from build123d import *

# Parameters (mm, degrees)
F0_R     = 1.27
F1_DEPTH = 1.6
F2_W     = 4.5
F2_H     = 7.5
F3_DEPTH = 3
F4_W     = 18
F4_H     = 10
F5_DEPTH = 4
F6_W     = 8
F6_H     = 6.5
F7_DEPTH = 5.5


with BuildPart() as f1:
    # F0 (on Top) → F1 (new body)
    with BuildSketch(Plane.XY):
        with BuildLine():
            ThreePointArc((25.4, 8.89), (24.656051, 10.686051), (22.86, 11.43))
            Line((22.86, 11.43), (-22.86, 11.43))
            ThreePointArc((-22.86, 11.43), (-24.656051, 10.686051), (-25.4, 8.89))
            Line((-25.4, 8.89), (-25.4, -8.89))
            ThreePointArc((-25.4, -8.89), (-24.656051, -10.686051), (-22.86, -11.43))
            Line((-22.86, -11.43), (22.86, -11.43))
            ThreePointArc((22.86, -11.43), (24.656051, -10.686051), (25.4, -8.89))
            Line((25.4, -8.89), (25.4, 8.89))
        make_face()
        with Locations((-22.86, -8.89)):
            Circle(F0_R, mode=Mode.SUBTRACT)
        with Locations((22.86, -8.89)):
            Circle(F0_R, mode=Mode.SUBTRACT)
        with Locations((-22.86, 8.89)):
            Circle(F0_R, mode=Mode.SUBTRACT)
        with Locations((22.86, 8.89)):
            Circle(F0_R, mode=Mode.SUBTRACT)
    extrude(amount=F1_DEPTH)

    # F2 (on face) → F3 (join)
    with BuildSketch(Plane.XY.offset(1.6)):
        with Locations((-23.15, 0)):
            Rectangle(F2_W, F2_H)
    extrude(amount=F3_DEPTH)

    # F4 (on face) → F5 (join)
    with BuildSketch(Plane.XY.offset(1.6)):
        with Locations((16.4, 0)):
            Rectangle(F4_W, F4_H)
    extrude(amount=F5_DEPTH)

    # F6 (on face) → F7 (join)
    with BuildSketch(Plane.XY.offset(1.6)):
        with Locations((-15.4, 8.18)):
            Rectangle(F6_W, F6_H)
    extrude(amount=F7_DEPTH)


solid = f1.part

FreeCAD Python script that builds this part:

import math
import FreeCAD as App
import Part
import Sketcher

doc = App.newDocument("Part")
params = doc.addObject("Spreadsheet::Sheet", "Params")
for row, (alias, value) in enumerate([
    ("sketch1_diameter", "2.54 mm"),
    ("sketch1_radius", "2.540001 mm"),
    ("sketch1_width", "45.72 mm"),
    ("sketch1_height", "17.78 mm"),
    ("pad1_length", "1.6 mm"),
    ("sketch2_width", "4.5 mm"),
    ("sketch2_height", "7.5 mm"),
    ("pad2_length", "3 mm"),
    ("sketch3_width", "18 mm"),
    ("sketch3_height", "10 mm"),
    ("pad3_length", "4 mm"),
    ("sketch4_width", "8 mm"),
    ("sketch4_height", "6.5 mm"),
    ("pad4_length", "5.5 mm"),
], start=1):
    params.set(f"A{row}", alias)
    params.set(f"B{row}", "=" + value)
    params.setAlias(f"B{row}", alias)

body = doc.addObject("PartDesign::Body", "Body")

sketch1 = body.newObject("Sketcher::SketchObject", "Sketch")
sketch1.AttachmentSupport = (doc.getObject("XY_Plane"), [""])
sketch1.MapMode = "FlatFace"
sketch1.addGeometry(Part.ArcOfCircle(Part.Circle(App.Vector(22.859999, 8.889999, 0), App.Vector(0, 0, 1), 2.540001), math.radians(0.000017), math.radians(89.999983)), False)
sketch1.addGeometry(Part.LineSegment(App.Vector(22.86, 11.43, 0), App.Vector(-22.86, 11.43, 0)), False)
sketch1.addGeometry(Part.ArcOfCircle(Part.Circle(App.Vector(-22.859999, 8.889999, 0), App.Vector(0, 0, 1), 2.540001), math.radians(90.000017), math.radians(179.999983)), False)
sketch1.addGeometry(Part.LineSegment(App.Vector(-25.4, 8.89, 0), App.Vector(-25.4, -8.89, 0)), False)
sketch1.addGeometry(Part.ArcOfCircle(Part.Circle(App.Vector(-22.859999, -8.889999, 0), App.Vector(0, 0, 1), 2.540001), math.radians(-179.999983), math.radians(-90.000017)), False)
sketch1.addGeometry(Part.LineSegment(App.Vector(-22.86, -11.43, 0), App.Vector(22.86, -11.43, 0)), False)
sketch1.addGeometry(Part.ArcOfCircle(Part.Circle(App.Vector(22.859999, -8.889999, 0), App.Vector(0, 0, 1), 2.540001), math.radians(-89.999983), math.radians(-0.000017)), False)
sketch1.addGeometry(Part.LineSegment(App.Vector(25.4, -8.89, 0), App.Vector(25.4, 8.89, 0)), False)
sketch1.addGeometry(Part.Circle(App.Vector(-22.86, -8.89, 0), App.Vector(0, 0, 1), 1.27), False)
sketch1.addGeometry(Part.Circle(App.Vector(22.86, -8.89, 0), App.Vector(0, 0, 1), 1.27), False)
sketch1.addGeometry(Part.Circle(App.Vector(-22.86, 8.89, 0), App.Vector(0, 0, 1), 1.27), False)
sketch1.addGeometry(Part.Circle(App.Vector(22.86, 8.89, 0), App.Vector(0, 0, 1), 1.27), False)
sketch1.addConstraint(Sketcher.Constraint("Tangent", 0, 2, 1, 1))
sketch1.addConstraint(Sketcher.Constraint("Tangent", 1, 2, 2, 1))
sketch1.addConstraint(Sketcher.Constraint("Tangent", 2, 2, 3, 1))
sketch1.addConstraint(Sketcher.Constraint("Tangent", 3, 2, 4, 1))
sketch1.addConstraint(Sketcher.Constraint("Tangent", 4, 2, 5, 1))
sketch1.addConstraint(Sketcher.Constraint("Tangent", 5, 2, 6, 1))
sketch1.addConstraint(Sketcher.Constraint("Tangent", 6, 2, 7, 1))
sketch1.addConstraint(Sketcher.Constraint("Tangent", 7, 2, 0, 1))
sketch1.addConstraint(Sketcher.Constraint("Horizontal", 1))
sketch1.addConstraint(Sketcher.Constraint("Vertical", 3))
sketch1.addConstraint(Sketcher.Constraint("Horizontal", 5))
sketch1.addConstraint(Sketcher.Constraint("Vertical", 7))
sketch1.addConstraint(Sketcher.Constraint("Coincident", 8, 3, 4, 3))
sketch1.addConstraint(Sketcher.Constraint("Coincident", 9, 3, 6, 3))
sketch1.addConstraint(Sketcher.Constraint("Coincident", 10, 3, 2, 3))
sketch1.addConstraint(Sketcher.Constraint("Coincident", 11, 3, 0, 3))
sketch1.addConstraint(Sketcher.Constraint("Equal", 0, 2))
sketch1.addConstraint(Sketcher.Constraint("Equal", 2, 4))
sketch1.addConstraint(Sketcher.Constraint("Equal", 4, 6))
sketch1.addConstraint(Sketcher.Constraint("Equal", 8, 9))
sketch1.addConstraint(Sketcher.Constraint("Equal", 9, 10))
sketch1.addConstraint(Sketcher.Constraint("Equal", 10, 11))
sketch1.addConstraint(Sketcher.Constraint("Symmetric", 0, 3, 4, 3, -1, 1))
sketch1.addConstraint(Sketcher.Constraint("Diameter", 8, 2.54))
sketch1.addConstraint(Sketcher.Constraint("Radius", 0, 2.540001))
sketch1.addConstraint(Sketcher.Constraint("DistanceX", 1, 2, 1, 1, 45.72))
sketch1.addConstraint(Sketcher.Constraint("DistanceY", 3, 2, 3, 1, 17.78))
sketch1.setExpression("Constraints[23]", "Params.sketch1_diameter")
sketch1.setExpression("Constraints[24]", "Params.sketch1_radius")
sketch1.setExpression("Constraints[25]", "Params.sketch1_width")
sketch1.setExpression("Constraints[26]", "Params.sketch1_height")
pad1 = body.newObject("PartDesign::Pad", "Pad")
pad1.Profile = sketch1
pad1.setExpression("Length", "Params.pad1_length")

sketch2 = body.newObject("Sketcher::SketchObject", "Sketch001")
sketch2.AttachmentSupport = (doc.getObject("XY_Plane"), [""])
sketch2.MapMode = "FlatFace"
sketch2.AttachmentOffset = App.Placement(App.Vector(0, 0, 1.6), App.Rotation())
sketch2.addGeometry(Part.LineSegment(App.Vector(-25.4, 3.75, 0), App.Vector(-25.4, -3.75, 0)), False)
sketch2.addGeometry(Part.LineSegment(App.Vector(-25.4, -3.75, 0), App.Vector(-20.9, -3.75, 0)), False)
sketch2.addGeometry(Part.LineSegment(App.Vector(-20.9, -3.75, 0), App.Vector(-20.9, 3.75, 0)), False)
sketch2.addGeometry(Part.LineSegment(App.Vector(-20.9, 3.75, 0), App.Vector(-25.4, 3.75, 0)), False)
sketch2.addConstraint(Sketcher.Constraint("Coincident", 0, 2, 1, 1))
sketch2.addConstraint(Sketcher.Constraint("Coincident", 1, 2, 2, 1))
sketch2.addConstraint(Sketcher.Constraint("Coincident", 2, 2, 3, 1))
sketch2.addConstraint(Sketcher.Constraint("Coincident", 3, 2, 0, 1))
sketch2.addConstraint(Sketcher.Constraint("Vertical", 0))
sketch2.addConstraint(Sketcher.Constraint("Horizontal", 1))
sketch2.addConstraint(Sketcher.Constraint("Vertical", 2))
sketch2.addConstraint(Sketcher.Constraint("Horizontal", 3))
sketch2.addConstraint(Sketcher.Constraint("DistanceX", 1, 1, 1, 2, 4.5))
sketch2.addConstraint(Sketcher.Constraint("DistanceY", 0, 2, 0, 1, 7.5))
sketch2.addConstraint(Sketcher.Constraint("DistanceX", 0, 2, -1, 1, 25.4))
sketch2.addConstraint(Sketcher.Constraint("DistanceY", 0, 2, -1, 1, 3.75))
sketch2.setExpression("Constraints[8]", "Params.sketch2_width")
sketch2.setExpression("Constraints[9]", "Params.sketch2_height")
pad2 = body.newObject("PartDesign::Pad", "Pad001")
pad2.Profile = sketch2
pad2.setExpression("Length", "Params.pad2_length")

sketch3 = body.newObject("Sketcher::SketchObject", "Sketch002")
sketch3.AttachmentSupport = (doc.getObject("XY_Plane"), [""])
sketch3.MapMode = "FlatFace"
sketch3.AttachmentOffset = App.Placement(App.Vector(0, 0, 1.6), App.Rotation())
sketch3.addGeometry(Part.LineSegment(App.Vector(7.4, 5, 0), App.Vector(7.4, -5, 0)), False)
sketch3.addGeometry(Part.LineSegment(App.Vector(7.4, -5, 0), App.Vector(25.4, -5, 0)), False)
sketch3.addGeometry(Part.LineSegment(App.Vector(25.4, -5, 0), App.Vector(25.4, 5, 0)), False)
sketch3.addGeometry(Part.LineSegment(App.Vector(25.4, 5, 0), App.Vector(7.4, 5, 0)), False)
sketch3.addConstraint(Sketcher.Constraint("Coincident", 0, 2, 1, 1))
sketch3.addConstraint(Sketcher.Constraint("Coincident", 1, 2, 2, 1))
sketch3.addConstraint(Sketcher.Constraint("Coincident", 2, 2, 3, 1))
sketch3.addConstraint(Sketcher.Constraint("Coincident", 3, 2, 0, 1))
sketch3.addConstraint(Sketcher.Constraint("Vertical", 0))
sketch3.addConstraint(Sketcher.Constraint("Horizontal", 1))
sketch3.addConstraint(Sketcher.Constraint("Vertical", 2))
sketch3.addConstraint(Sketcher.Constraint("Horizontal", 3))
sketch3.addConstraint(Sketcher.Constraint("DistanceX", 1, 1, 1, 2, 18.0))
sketch3.addConstraint(Sketcher.Constraint("DistanceY", 0, 2, 0, 1, 10.0))
sketch3.addConstraint(Sketcher.Constraint("DistanceY", 0, 2, -1, 1, 5.0))
sketch3.addConstraint(Sketcher.Constraint("DistanceX", -1, 1, 0, 2, 7.4))
sketch3.setExpression("Constraints[8]", "Params.sketch3_width")
sketch3.setExpression("Constraints[9]", "Params.sketch3_height")
pad3 = body.newObject("PartDesign::Pad", "Pad002")
pad3.Profile = sketch3
pad3.setExpression("Length", "Params.pad3_length")

sketch4 = body.newObject("Sketcher::SketchObject", "Sketch003")
sketch4.AttachmentSupport = (doc.getObject("XY_Plane"), [""])
sketch4.MapMode = "FlatFace"
sketch4.AttachmentOffset = App.Placement(App.Vector(0, 0, 1.6), App.Rotation())
sketch4.addGeometry(Part.LineSegment(App.Vector(-19.4, 11.43, 0), App.Vector(-19.4, 4.93, 0)), False)
sketch4.addGeometry(Part.LineSegment(App.Vector(-19.4, 4.93, 0), App.Vector(-11.4, 4.93, 0)), False)
sketch4.addGeometry(Part.LineSegment(App.Vector(-11.4, 4.93, 0), App.Vector(-11.4, 11.43, 0)), False)
sketch4.addGeometry(Part.LineSegment(App.Vector(-11.4, 11.43, 0), App.Vector(-19.4, 11.43, 0)), False)
sketch4.addConstraint(Sketcher.Constraint("Coincident", 0, 2, 1, 1))
sketch4.addConstraint(Sketcher.Constraint("Coincident", 1, 2, 2, 1))
sketch4.addConstraint(Sketcher.Constraint("Coincident", 2, 2, 3, 1))
sketch4.addConstraint(Sketcher.Constraint("Coincident", 3, 2, 0, 1))
sketch4.addConstraint(Sketcher.Constraint("Vertical", 0))
sketch4.addConstraint(Sketcher.Constraint("Horizontal", 1))
sketch4.addConstraint(Sketcher.Constraint("Vertical", 2))
sketch4.addConstraint(Sketcher.Constraint("Horizontal", 3))
sketch4.addConstraint(Sketcher.Constraint("DistanceX", 1, 1, 1, 2, 8.0))
sketch4.addConstraint(Sketcher.Constraint("DistanceY", 0, 2, 0, 1, 6.5))
sketch4.addConstraint(Sketcher.Constraint("DistanceX", 0, 2, -1, 1, 19.4))
sketch4.addConstraint(Sketcher.Constraint("DistanceY", -1, 1, 0, 2, 4.93))
sketch4.setExpression("Constraints[8]", "Params.sketch4_width")
sketch4.setExpression("Constraints[9]", "Params.sketch4_height")
pad4 = body.newObject("PartDesign::Pad", "Pad003")
pad4.Profile = sketch4
pad4.setExpression("Length", "Params.pad4_length")

doc.recompute()
